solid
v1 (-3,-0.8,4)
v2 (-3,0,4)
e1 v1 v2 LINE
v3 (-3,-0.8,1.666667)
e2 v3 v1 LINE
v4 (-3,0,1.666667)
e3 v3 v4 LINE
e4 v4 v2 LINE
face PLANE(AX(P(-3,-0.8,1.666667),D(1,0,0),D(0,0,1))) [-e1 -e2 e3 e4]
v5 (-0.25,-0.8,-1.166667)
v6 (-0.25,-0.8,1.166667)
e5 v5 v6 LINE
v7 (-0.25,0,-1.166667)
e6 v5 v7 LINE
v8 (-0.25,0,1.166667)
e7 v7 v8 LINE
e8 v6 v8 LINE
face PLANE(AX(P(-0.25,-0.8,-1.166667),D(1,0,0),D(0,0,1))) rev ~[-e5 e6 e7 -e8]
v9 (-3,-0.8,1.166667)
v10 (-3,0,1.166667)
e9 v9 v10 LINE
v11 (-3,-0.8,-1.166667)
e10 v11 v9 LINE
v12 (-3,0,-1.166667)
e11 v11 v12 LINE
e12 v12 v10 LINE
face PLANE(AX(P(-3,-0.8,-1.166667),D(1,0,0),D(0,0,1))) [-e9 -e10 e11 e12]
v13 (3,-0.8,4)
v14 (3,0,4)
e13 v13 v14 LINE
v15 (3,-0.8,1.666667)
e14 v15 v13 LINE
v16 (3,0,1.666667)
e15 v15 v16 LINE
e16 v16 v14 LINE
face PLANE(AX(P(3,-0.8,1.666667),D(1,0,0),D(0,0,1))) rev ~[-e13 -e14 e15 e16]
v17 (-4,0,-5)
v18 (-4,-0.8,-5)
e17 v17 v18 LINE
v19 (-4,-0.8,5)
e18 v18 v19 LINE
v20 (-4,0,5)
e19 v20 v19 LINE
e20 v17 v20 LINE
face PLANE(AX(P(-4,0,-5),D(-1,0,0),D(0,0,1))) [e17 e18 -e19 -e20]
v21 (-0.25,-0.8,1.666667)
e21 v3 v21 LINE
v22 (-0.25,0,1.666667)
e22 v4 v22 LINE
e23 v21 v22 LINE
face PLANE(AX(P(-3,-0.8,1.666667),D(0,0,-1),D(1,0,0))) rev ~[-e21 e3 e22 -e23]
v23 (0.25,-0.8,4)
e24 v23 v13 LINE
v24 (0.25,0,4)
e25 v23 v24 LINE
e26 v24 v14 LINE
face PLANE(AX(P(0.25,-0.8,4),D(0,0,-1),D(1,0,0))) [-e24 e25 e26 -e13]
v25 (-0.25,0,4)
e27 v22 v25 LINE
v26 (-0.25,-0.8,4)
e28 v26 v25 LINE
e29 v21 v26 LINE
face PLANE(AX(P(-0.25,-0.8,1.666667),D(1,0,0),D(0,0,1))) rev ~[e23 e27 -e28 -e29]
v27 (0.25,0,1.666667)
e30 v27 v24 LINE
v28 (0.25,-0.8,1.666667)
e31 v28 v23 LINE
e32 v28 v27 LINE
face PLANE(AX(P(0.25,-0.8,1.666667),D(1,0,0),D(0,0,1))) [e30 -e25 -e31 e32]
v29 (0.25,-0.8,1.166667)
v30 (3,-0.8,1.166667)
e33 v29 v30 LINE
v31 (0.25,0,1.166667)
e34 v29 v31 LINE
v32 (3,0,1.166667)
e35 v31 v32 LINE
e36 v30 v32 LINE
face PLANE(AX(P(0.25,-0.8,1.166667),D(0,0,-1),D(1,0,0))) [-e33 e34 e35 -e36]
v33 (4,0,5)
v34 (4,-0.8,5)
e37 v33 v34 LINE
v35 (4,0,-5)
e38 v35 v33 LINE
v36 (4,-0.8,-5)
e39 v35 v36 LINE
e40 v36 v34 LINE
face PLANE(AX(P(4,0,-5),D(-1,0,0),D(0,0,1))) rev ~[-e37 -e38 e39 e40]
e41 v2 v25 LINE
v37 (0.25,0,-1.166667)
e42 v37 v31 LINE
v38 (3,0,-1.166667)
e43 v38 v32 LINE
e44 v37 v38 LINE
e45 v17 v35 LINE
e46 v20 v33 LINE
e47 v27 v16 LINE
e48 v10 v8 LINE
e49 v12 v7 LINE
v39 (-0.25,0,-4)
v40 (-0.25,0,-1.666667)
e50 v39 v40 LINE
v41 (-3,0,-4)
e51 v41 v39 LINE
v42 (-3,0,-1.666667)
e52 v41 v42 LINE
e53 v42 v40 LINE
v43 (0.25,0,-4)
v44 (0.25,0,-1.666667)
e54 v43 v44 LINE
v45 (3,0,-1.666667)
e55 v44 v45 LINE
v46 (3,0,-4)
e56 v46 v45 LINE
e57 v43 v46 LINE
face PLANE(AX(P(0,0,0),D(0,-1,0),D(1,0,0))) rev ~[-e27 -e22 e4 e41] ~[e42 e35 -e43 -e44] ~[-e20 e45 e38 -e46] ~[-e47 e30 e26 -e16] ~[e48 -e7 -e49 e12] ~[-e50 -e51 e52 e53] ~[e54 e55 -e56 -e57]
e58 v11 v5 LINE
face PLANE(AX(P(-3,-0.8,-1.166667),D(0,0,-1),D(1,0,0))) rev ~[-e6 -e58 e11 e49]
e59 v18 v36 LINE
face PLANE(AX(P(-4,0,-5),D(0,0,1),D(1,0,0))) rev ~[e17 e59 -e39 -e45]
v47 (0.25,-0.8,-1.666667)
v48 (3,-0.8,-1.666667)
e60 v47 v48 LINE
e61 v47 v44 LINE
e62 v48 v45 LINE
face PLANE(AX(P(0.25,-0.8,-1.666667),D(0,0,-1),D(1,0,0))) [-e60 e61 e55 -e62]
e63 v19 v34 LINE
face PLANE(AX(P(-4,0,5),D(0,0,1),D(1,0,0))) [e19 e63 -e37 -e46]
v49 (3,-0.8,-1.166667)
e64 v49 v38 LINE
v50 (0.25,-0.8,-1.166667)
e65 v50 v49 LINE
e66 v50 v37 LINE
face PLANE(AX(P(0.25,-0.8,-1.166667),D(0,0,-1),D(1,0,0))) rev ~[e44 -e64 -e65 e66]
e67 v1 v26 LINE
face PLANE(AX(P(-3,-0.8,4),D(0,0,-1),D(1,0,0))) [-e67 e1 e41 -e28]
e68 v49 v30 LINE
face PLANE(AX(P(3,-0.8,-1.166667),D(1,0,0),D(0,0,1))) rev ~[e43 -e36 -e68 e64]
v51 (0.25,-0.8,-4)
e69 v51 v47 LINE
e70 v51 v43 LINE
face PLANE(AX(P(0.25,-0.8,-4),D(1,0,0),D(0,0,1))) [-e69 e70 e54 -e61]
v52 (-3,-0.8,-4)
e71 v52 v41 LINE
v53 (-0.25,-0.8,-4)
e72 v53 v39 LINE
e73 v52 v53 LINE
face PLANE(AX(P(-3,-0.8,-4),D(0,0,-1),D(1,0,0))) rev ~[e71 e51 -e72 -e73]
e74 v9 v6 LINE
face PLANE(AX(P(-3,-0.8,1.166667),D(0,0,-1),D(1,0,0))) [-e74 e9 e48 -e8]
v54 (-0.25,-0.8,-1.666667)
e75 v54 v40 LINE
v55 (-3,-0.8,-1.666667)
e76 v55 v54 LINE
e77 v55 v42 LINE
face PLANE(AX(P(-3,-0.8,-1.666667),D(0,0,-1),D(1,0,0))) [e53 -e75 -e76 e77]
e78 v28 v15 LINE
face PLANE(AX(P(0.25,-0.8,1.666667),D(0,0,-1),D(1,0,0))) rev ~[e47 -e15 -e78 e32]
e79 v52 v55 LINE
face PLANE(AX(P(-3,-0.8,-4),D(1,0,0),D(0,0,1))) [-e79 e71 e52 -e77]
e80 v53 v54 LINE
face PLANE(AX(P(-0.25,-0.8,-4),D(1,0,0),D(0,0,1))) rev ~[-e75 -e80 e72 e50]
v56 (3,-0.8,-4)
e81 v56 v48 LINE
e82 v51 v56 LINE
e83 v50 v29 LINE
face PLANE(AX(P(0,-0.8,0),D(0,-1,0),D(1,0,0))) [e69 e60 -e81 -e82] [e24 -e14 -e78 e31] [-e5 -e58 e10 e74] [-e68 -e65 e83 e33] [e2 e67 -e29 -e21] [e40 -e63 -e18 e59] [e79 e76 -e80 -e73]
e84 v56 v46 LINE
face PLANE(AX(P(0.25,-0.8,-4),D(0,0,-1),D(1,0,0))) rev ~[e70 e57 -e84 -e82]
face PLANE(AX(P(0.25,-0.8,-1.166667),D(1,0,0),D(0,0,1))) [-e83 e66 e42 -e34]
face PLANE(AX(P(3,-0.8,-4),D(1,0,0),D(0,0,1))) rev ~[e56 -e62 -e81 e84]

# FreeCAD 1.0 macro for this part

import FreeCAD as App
import Part
import Sketcher

doc = App.newDocument("Part")
body = doc.addObject("PartDesign::Body", "Body")

# Sketch on XZ plane
sketch1 = body.newObject("Sketcher::SketchObject", "Sketch")
sketch1.AttachmentSupport = (doc.getObject("XZ_Plane"), [""])
sketch1.MapMode = "FlatFace"
sketch1.addGeometry(Part.LineSegment(App.Vector(-4, 5, 0), App.Vector(-4, -5, 0)), False)
sketch1.addGeometry(Part.LineSegment(App.Vector(-4, -5, 0), App.Vector(4, -5, 0)), False)
sketch1.addGeometry(Part.LineSegment(App.Vector(4, -5, 0), App.Vector(4, 5, 0)), False)
sketch1.addGeometry(Part.LineSegment(App.Vector(4, 5, 0), App.Vector(-4, 5, 0)), False)
sketch1.addConstraint(Sketcher.Constraint("Coincident", 0, 2, 1, 1))
sketch1.addConstraint(Sketcher.Constraint("Coincident", 1, 2, 2, 1))
sketch1.addConstraint(Sketcher.Constraint("Coincident", 2, 2, 3, 1))
sketch1.addConstraint(Sketcher.Constraint("Coincident", 3, 2, 0, 1))
sketch1.addConstraint(Sketcher.Constraint("Vertical", 0))
sketch1.addConstraint(Sketcher.Constraint("Horizontal", 1))
sketch1.addConstraint(Sketcher.Constraint("Vertical", 2))
sketch1.addConstraint(Sketcher.Constraint("Horizontal", 3))
sketch1.addConstraint(Sketcher.Constraint("Symmetric", 0, 2, 2, 2, -1, 1))
sketch1.addConstraint(Sketcher.Constraint("DistanceX", 1, 1, 1, 2, 8.0))
sketch1.addConstraint(Sketcher.Constraint("DistanceY", 0, 2, 0, 1, 10.0))
pad1 = body.newObject("PartDesign::Pad", "Pad")
pad1.Profile = sketch1
pad1.Length = 0.8

# Sketch on XZ plane
sketch2 = body.newObject("Sketcher::SketchObject", "Sketch001")
sketch2.AttachmentSupport = (doc.getObject("XZ_Plane"), [""])
sketch2.MapMode = "FlatFace"
sketch2.AttachmentOffset = App.Placement(App.Vector(0, 0, 0.8), App.Rotation())
sketch2.addGeometry(Part.LineSegment(App.Vector(-3, 4, 0), App.Vector(-3, 1.7, 0)), False)
sketch2.addGeometry(Part.LineSegment(App.Vector(-3, 1.7, 0), App.Vector(-0.2, 1.7, 0)), False)
sketch2.addGeometry(Part.LineSegment(App.Vector(-0.2, 1.7, 0), App.Vector(-0.2, 4, 0)), False)
sketch2.addGeometry(Part.LineSegment(App.Vector(-0.2, 4, 0), App.Vector(-3, 4, 0)), False)
sketch2.addGeometry(Part.LineSegment(App.Vector(-3, 1.2, 0), App.Vector(-3, -1.2, 0)), False)
sketch2.addGeometry(Part.LineSegment(App.Vector(-3, -1.2, 0), App.Vector(-0.2, -1.2, 0)), False)
sketch2.addGeometry(Part.LineSegment(App.Vector(-0.2, -1.2, 0), App.Vector(-0.2, 1.2, 0)), False)
sketch2.addGeometry(Part.LineSegment(App.Vector(-0.2, 1.2, 0), App.Vector(-3, 1.2, 0)), False)
sketch2.addGeometry(Part.LineSegment(App.Vector(-3, -1.7, 0), App.Vector(-3, -4, 0)), False)
sketch2.addGeometry(Part.LineSegment(App.Vector(-3, -4, 0), App.Vector(-0.2, -4, 0)), False)
sketch2.addGeometry(Part.LineSegment(App.Vector(-0.2, -4, 0), App.Vector(-0.2, -1.7, 0)), False)
sketch2.addGeometry(Part.LineSegment(App.Vector(-0.2, -1.7, 0), App.Vector(-3, -1.7, 0)), False)
sketch2.addGeometry(Part.LineSegment(App.Vector(0.2, 4, 0), App.Vector(0.2, 1.7, 0)), False)
sketch2.addGeometry(Part.LineSegment(App.Vector(0.2, 1.7, 0), App.Vector(3, 1.7, 0)), False)
sketch2.addGeometry(Part.LineSegment(App.Vector(3, 1.7, 0), App.Vector(3, 4, 0)), False)
sketch2.addGeometry(Part.LineSegment(App.Vector(3, 4, 0), App.Vector(0.2, 4, 0)), False)
sketch2.addGeometry(Part.LineSegment(App.Vector(0.2, 1.2, 0), App.Vector(0.2, -1.2, 0)), False)
sketch2.addGeometry(Part.LineSegment(App.Vector(0.2, -1.2, 0), App.Vector(3, -1.2, 0)), False)
sketch2.addGeometry(Part.LineSegment(App.Vector(3, -1.2, 0), App.Vector(3, 1.2, 0)), False)
sketch2.addGeometry(Part.LineSegment(App.Vector(3, 1.2, 0), App.Vector(0.2, 1.2, 0)), False)
sketch2.addGeometry(Part.LineSegment(App.Vector(0.2, -1.7, 0), App.Vector(0.2, -4, 0)), False)
sketch2.addGeometry(Part.LineSegment(App.Vector(0.2, -4, 0), App.Vector(3, -4, 0)), False)
sketch2.addGeometry(Part.LineSegment(App.Vector(3, -4, 0), App.Vector(3, -1.7, 0)), False)
sketch2.addGeometry(Part.LineSegment(App.Vector(3, -1.7, 0), App.Vector(0.2, -1.7, 0)), False)
sketch2.addConstraint(Sketcher.Constraint("Coincident", 0, 2, 1, 1))
sketch2.addConstraint(Sketcher.Constraint("Coincident", 1, 2, 2, 1))
sketch2.addConstraint(Sketcher.Constraint("Coincident", 2, 2, 3, 1))
sketch2.addConstraint(Sketcher.Constraint("Coincident", 3, 2, 0, 1))
sketch2.addConstraint(Sketcher.Constraint("Coincident", 4, 2, 5, 1))
sketch2.addConstraint(Sketcher.Constraint("Coincident", 5, 2, 6, 1))
sketch2.addConstraint(Sketcher.Constraint("Coincident", 6, 2, 7, 1))
sketch2.addConstraint(Sketcher.Constraint("Coincident", 7, 2, 4, 1))
sketch2.addConstraint(Sketcher.Constraint("Coincident", 8, 2, 9, 1))
sketch2.addConstraint(Sketcher.Constraint("Coincident", 9, 2, 10, 1))
sketch2.addConstraint(Sketcher.Constraint("Coincident", 10, 2, 11, 1))
sketch2.addConstraint(Sketcher.Constraint("Coincident", 11, 2, 8, 1))
sketch2.addConstraint(Sketcher.Constraint("Coincident", 12, 2, 13, 1))
sketch2.addConstraint(Sketcher.Constraint("Coincident", 13, 2, 14, 1))
sketch2.addConstraint(Sketcher.Constraint("Coincident", 14, 2, 15, 1))
sketch2.addConstraint(Sketcher.Constraint("Coincident", 15, 2, 12, 1))
sketch2.addConstraint(Sketcher.Constraint("Coincident", 16, 2, 17, 1))
sketch2.addConstraint(Sketcher.Constraint("Coincident", 17, 2, 18, 1))
sketch2.addConstraint(Sketcher.Constraint("Coincident", 18, 2, 19, 1))
sketch2.addConstraint(Sketcher.Constraint("Coincident", 19, 2, 16, 1))
sketch2.addConstraint(Sketcher.Constraint("Coincident", 20, 2, 21, 1))
sketch2.addConstraint(Sketcher.Constraint("Coincident", 21, 2, 22, 1))
sketch2.addConstraint(Sketcher.Constraint("Coincident", 22, 2, 23, 1))
sketch2.addConstraint(Sketcher.Constraint("Coincident", 23, 2, 20, 1))
sketch2.addConstraint(Sketcher.Constraint("Vertical", 0))
sketch2.addConstraint(Sketcher.Constraint("Horizontal", 1))
sketch2.addConstraint(Sketcher.Constraint("Vertical", 2))
sketch2.addConstraint(Sketcher.Constraint("Horizontal", 3))
sketch2.addConstraint(Sketcher.Constraint("Vertical", 4))
sketch2.addConstraint(Sketcher.Constraint("Horizontal", 5))
sketch2.addConstraint(Sketcher.Constraint("Vertical", 6))
sketch2.addConstraint(Sketcher.Constraint("Horizontal", 7))
sketch2.addConstraint(Sketcher.Constraint("Vertical", 8))
sketch2.addConstraint(Sketcher.Constraint("Horizontal", 9))
sketch2.addConstraint(Sketcher.Constraint("Vertical", 10))
sketch2.addConstraint(Sketcher.Constraint("Horizontal", 11))
sketch2.addConstraint(Sketcher.Constraint("Vertical", 12))
sketch2.addConstraint(Sketcher.Constraint("Horizontal", 13))
sketch2.addConstraint(Sketcher.Constraint("Vertical", 14))
sketch2.addConstraint(Sketcher.Constraint("Horizontal", 15))
sketch2.addConstraint(Sketcher.Constraint("Vertical", 16))
sketch2.addConstraint(Sketcher.Constraint("Horizontal", 17))
sketch2.addConstraint(Sketcher.Constraint("Vertical", 18))
sketch2.addConstraint(Sketcher.Constraint("Horizontal", 19))
sketch2.addConstraint(Sketcher.Constraint("Vertical", 20))
sketch2.addConstraint(Sketcher.Constraint("Horizontal", 21))
sketch2.addConstraint(Sketcher.Constraint("Vertical", 22))
sketch2.addConstraint(Sketcher.Constraint("Horizontal", 23))
sketch2.addConstraint(Sketcher.Constraint("Symmetric", 10, 2, 12, 2, -1, 1))
sketch2.addConstraint(Sketcher.Constraint("Symmetric", 8, 2, 14, 2, -1, 1))
sketch2.addConstraint(Sketcher.Constraint("Symmetric", 6, 2, 16, 2, -1, 1))
sketch2.addConstraint(Sketcher.Constraint("Symmetric", 4, 2, 18, 2, -1, 1))
sketch2.addConstraint(Sketcher.Constraint("Symmetric", 2, 2, 20, 2, -1, 1))
sketch2.addConstraint(Sketcher.Constraint("Symmetric", 0, 2, 22, 2, -1, 1))
sketch2.addConstraint(Sketcher.Constraint("Symmetric", 1, 2, 12, 2, -2))
sketch2.addConstraint(Sketcher.Constraint("Symmetric", 3, 2, 14, 2, -2))
sketch2.addConstraint(Sketcher.Constraint("Horizontal", 5, 2, 16, 2))
sketch2.addConstraint(Sketcher.Constraint("Vertical", 3, 2, 4, 2))
sketch2.addConstraint(Sketcher.Constraint("Vertical", 2, 2, 5, 2))
sketch2.addConstraint(Sketcher.Constraint("Equal", 2, 4))
sketch2.addConstraint(Sketcher.Constraint("DistanceX", 0, 2, -1, 1, 3.0))
sketch2.addConstraint(Sketcher.Constraint("DistanceY", -1, 1, 2, 2, 4.0))
sketch2.addConstraint(Sketcher.Constraint("DistanceX", 1, 1, 1, 2, 2.75))
sketch2.addConstraint(Sketcher.Constraint("DistanceY", 6, 2, 1, 2, 0.500001))
pocket1 = body.newObject("PartDesign::Pocket", "Pocket")
pocket1.Profile = sketch2
pocket1.Length = 5

doc.recompute()
